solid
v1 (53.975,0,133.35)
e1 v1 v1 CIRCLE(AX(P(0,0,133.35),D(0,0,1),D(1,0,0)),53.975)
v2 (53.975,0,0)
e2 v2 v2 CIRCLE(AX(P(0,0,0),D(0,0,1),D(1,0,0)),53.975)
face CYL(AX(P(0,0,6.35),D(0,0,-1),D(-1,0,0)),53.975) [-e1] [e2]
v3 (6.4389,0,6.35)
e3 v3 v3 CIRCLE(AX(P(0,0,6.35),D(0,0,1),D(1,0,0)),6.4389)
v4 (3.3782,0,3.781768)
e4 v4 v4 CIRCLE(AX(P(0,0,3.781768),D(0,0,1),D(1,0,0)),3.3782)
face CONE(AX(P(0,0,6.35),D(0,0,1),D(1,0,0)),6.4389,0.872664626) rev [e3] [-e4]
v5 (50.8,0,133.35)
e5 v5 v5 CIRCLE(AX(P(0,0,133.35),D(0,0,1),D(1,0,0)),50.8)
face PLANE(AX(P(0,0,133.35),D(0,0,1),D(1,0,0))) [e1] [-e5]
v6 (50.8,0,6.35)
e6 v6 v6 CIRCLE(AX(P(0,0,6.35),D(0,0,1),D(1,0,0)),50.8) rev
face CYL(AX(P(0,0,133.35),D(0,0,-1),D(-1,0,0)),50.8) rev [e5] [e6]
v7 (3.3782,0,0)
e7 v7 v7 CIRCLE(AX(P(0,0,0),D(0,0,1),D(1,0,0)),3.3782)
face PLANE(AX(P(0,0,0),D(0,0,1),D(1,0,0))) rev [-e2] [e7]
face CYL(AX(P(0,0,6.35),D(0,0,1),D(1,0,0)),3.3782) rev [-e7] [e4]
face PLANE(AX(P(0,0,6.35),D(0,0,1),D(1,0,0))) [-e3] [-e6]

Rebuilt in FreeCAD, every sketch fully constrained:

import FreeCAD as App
import Part
import Sketcher
Q = App.Units.Quantity

doc = App.newDocument("Part")
params = doc.addObject("Spreadsheet::Sheet", "Params")
for row, (alias, value) in enumerate([
    ("sketch1_diameter", "4.25 in"),
    ("pad1_length", "0.25 in"),
    ("sketch2_diameter", "0.266 in"),
    ("hole_diameter", "0.266 in"),
    ("hole_csink_diameter", "0.507 in"),
    ("sketch3_diameter", "4 in"),
    ("sketch3_diameter2", "4.25 in"),
    ("pad2_length", "5 in"),
], start=1):
    params.set(f"A{row}", alias)
    params.set(f"B{row}", "=" + value)
    params.setAlias(f"B{row}", alias)

body = doc.addObject("PartDesign::Body", "Body")

# Sketch on XY plane
sketch1 = doc.addObject("Sketcher::SketchObject", "Sketch")
body.addObject(sketch1)
sketch1.AttachmentSupport = (doc.XY_Plane, [""])
sketch1.MapMode = "FlatFace"
sketch1.addGeometry(Part.Circle(App.Vector(0, 0, 0), App.Vector(0, 0, 1), 54), False)
sketch1.addConstraint(Sketcher.Constraint("Coincident", 0, 3, -1, 1))
sketch1.addConstraint(Sketcher.Constraint("Diameter", 0, Q("4.25 in")))
sketch1.setExpression("Constraints[1]", "Params.sketch1_diameter")
pad1 = doc.addObject("PartDesign::Pad", "Pad")
body.addObject(pad1)
pad1.Profile = sketch1
pad1.setExpression("Length", "Params.pad1_length")

# Sketch on XY plane
sketch2 = doc.addObject("Sketcher::SketchObject", "Sketch001")
body.addObject(sketch2)
sketch2.AttachmentSupport = (doc.XY_Plane, [""])
sketch2.MapMode = "FlatFace"
sketch2.AttachmentOffset = App.Placement(App.Vector(0, 0, 0.25 * 25.4), App.Rotation())
sketch2.addGeometry(Part.Circle(App.Vector(0, 0, 0), App.Vector(0, 0, 1), 3.4), False)
sketch2.addConstraint(Sketcher.Constraint("Coincident", 0, 3, -1, 1))
sketch2.addConstraint(Sketcher.Constraint("Diameter", 0, Q("0.266 in")))
sketch2.setExpression("Constraints[1]", "Params.sketch2_diameter")
doc.recompute()
hole = doc.addObject("PartDesign::Hole", "Hole")
body.addObject(hole)
hole.Profile = sketch2
hole.ThreadType = "None"
hole.setExpression("Diameter", "Params.hole_diameter")
hole.DepthType = "ThroughAll"
hole.HoleCutType = "Countersink"
hole.setExpression("HoleCutDiameter", "Params.hole_csink_diameter")
hole.HoleCutCountersinkAngle = 100

# Sketch on XY plane
sketch3 = doc.addObject("Sketcher::SketchObject", "Sketch002")
body.addObject(sketch3)
sketch3.AttachmentSupport = (doc.XY_Plane, [""])
sketch3.MapMode = "FlatFace"
sketch3.AttachmentOffset = App.Placement(App.Vector(0, 0, 0.25 * 25.4), App.Rotation())
sketch3.addGeometry(Part.Circle(App.Vector(0, 0, 0), App.Vector(0, 0, 1), 54), False)
sketch3.addGeometry(Part.Circle(App.Vector(0, 0, 0), App.Vector(0, 0, 1), 51), False)
sketch3.addConstraint(Sketcher.Constraint("Coincident", 0, 3, -1, 1))
sketch3.addConstraint(Sketcher.Constraint("Coincident", 1, 3, -1, 1))
sketch3.addConstraint(Sketcher.Constraint("Diameter", 1, Q("4 in")))
sketch3.addConstraint(Sketcher.Constraint("Diameter", 0, Q("4.25 in")))
sketch3.setExpression("Constraints[2]", "Params.sketch3_diameter")
sketch3.setExpression("Constraints[3]", "Params.sketch3_diameter2")
pad2 = doc.addObject("PartDesign::Pad", "Pad001")
body.addObject(pad2)
pad2.Profile = sketch3
pad2.setExpression("Length", "Params.pad2_length")

doc.recompute()
